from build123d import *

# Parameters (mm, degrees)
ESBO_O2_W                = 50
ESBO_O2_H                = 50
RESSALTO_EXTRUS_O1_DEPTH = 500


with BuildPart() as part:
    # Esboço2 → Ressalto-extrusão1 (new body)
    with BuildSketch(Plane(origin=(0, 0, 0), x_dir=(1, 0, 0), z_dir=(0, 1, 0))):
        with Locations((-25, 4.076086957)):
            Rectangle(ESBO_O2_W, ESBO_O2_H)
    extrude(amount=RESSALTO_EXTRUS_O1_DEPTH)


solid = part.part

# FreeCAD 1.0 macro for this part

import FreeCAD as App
import Part
import Sketcher
from FreeCAD import Vector
Q = App.Units.Quantity

doc = App.newDocument("Part")
body = doc.addObject("PartDesign::Body", "Body")

sketch1 = body.newObject("Sketcher::SketchObject", "Sketch")
sketch1.AttachmentSupport = (doc.getObject("XZ_Plane"), [""])
sketch1.MapMode = "FlatFace"
sketch1.addGeometry([
    Part.LineSegment(Vector(-50, -29, 0), Vector(-50, 21, 0)),
    Part.LineSegment(Vector(-50, 21, 0), Vector(0, 21, 0)),
    Part.LineSegment(Vector(0, 21, 0), Vector(0, -29, 0)),
    Part.LineSegment(Vector(0, -29, 0), Vector(-50, -29, 0)),
], False)
sketch1.addConstraint([
    Sketcher.Constraint("Coincident", 0, 2, 1, 1),
    Sketcher.Constraint("Coincident", 1, 2, 2, 1),
    Sketcher.Constraint("Coincident", 2, 2, 3, 1),
    Sketcher.Constraint("Coincident", 3, 2, 0, 1),
    Sketcher.Constraint("Vertical", 0),
    Sketcher.Constraint("Horizontal", 1),
    Sketcher.Constraint("Vertical", 2),
    Sketcher.Constraint("Horizontal", 3),
    Sketcher.Constraint("PointOnObject", 1, 2, -2),
    Sketcher.Constraint("Equal", 3, 0),
    Sketcher.Constraint("DistanceX", 1, 1, 1, 2, Q("50 mm")),
    Sketcher.Constraint("DistanceY", -1, 1, 0, 2, Q("20.923913 mm")),
])
pad1 = body.newObject("PartDesign::Pad", "Pad")
pad1.Profile = sketch1
pad1.Length = 500
pad1.Reversed = True

doc.recompute()
